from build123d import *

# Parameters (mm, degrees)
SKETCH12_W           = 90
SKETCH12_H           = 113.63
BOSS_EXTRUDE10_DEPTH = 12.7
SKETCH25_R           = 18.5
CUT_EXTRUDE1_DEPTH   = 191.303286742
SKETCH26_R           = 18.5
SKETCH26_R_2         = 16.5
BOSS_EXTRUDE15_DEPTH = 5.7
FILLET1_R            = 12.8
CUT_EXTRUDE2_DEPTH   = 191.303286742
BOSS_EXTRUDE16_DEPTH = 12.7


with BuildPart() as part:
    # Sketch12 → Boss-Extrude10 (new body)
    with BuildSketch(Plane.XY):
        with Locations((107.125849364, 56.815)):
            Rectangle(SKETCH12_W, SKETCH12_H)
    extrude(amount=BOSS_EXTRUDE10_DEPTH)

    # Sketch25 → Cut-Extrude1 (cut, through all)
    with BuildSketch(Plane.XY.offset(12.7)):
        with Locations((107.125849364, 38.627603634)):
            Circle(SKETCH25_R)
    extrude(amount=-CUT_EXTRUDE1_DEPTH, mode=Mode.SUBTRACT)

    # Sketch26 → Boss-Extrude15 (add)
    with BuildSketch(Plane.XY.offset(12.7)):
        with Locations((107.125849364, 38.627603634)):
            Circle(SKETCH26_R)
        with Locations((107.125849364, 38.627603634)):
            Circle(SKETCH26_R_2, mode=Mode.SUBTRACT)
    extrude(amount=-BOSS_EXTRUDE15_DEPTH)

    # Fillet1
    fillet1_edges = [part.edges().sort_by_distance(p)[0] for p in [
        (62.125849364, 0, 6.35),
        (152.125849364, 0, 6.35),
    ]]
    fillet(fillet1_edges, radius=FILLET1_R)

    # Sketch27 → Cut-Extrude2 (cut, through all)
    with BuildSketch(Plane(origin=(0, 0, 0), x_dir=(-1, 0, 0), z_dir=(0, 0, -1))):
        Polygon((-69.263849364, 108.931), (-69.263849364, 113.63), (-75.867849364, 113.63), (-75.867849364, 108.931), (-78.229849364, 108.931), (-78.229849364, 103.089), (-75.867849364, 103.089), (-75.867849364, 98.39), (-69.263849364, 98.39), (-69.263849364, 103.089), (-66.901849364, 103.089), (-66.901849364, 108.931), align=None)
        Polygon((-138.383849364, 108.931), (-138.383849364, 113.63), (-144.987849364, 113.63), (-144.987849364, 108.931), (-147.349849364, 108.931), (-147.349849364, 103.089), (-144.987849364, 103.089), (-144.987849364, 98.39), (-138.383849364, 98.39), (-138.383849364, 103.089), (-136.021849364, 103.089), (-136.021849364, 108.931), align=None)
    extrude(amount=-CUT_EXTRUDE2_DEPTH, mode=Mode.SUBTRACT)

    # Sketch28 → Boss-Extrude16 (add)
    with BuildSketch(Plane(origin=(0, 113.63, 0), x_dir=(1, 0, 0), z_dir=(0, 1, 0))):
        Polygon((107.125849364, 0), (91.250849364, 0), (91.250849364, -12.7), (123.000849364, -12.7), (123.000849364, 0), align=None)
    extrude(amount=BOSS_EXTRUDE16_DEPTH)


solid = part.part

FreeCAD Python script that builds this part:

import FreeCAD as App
import Part
import Sketcher


def edges_at(feature, points):
    """Names of the edges that pass closest to the given points."""
    edges = feature.Shape.Edges
    near = lambda p: min(range(len(edges)), key=lambda i: edges[i].distToShape(Part.Vertex(*p))[0])
    return sorted({f"Edge{near(p) + 1}" for p in points})

doc = App.newDocument("Part")
body = doc.addObject("PartDesign::Body", "Body")

# Sketch on XY plane
sketch1 = body.newObject("Sketcher::SketchObject", "Sketch")
sketch1.AttachmentSupport = (doc.getObject("XY_Plane"), [""])
sketch1.MapMode = "FlatFace"
sketch1.addGeometry(Part.LineSegment(App.Vector(62, 114, 0), App.Vector(62, 0, 0)), False)
sketch1.addGeometry(Part.LineSegment(App.Vector(62, 0, 0), App.Vector(152, 0, 0)), False)
sketch1.addGeometry(Part.LineSegment(App.Vector(152, 0, 0), App.Vector(152, 114, 0)), False)
sketch1.addGeometry(Part.LineSegment(App.Vector(152, 114, 0), App.Vector(62, 114, 0)), False)
sketch1.addConstraint(Sketcher.Constraint("Coincident", 0, 2, 1, 1))
sketch1.addConstraint(Sketcher.Constraint("Coincident", 1, 2, 2, 1))
sketch1.addConstraint(Sketcher.Constraint("Coincident", 2, 2, 3, 1))
sketch1.addConstraint(Sketcher.Constraint("Coincident", 3, 2, 0, 1))
sketch1.addConstraint(Sketcher.Constraint("Vertical", 0))
sketch1.addConstraint(Sketcher.Constraint("Horizontal", 1))
sketch1.addConstraint(Sketcher.Constraint("Vertical", 2))
sketch1.addConstraint(Sketcher.Constraint("Horizontal", 3))
sketch1.addConstraint(Sketcher.Constraint("PointOnObject", 0, 2, -1))
sketch1.addConstraint(Sketcher.Constraint("DistanceX", 1, 1, 1, 2, 90.0))
sketch1.addConstraint(Sketcher.Constraint("DistanceY", 0, 2, 0, 1, 113.63))
sketch1.addConstraint(Sketcher.Constraint("DistanceX", -1, 1, 0, 2, 62.125849))
pad1 = body.newObject("PartDesign::Pad", "Pad")
pad1.Profile = sketch1
pad1.Length = 12.7

# Sketch on XY plane
sketch2 = body.newObject("Sketcher::SketchObject", "Sketch001")
sketch2.AttachmentSupport = (doc.getObject("XY_Plane"), [""])
sketch2.MapMode = "FlatFace"
sketch2.AttachmentOffset = App.Placement(App.Vector(0, 0, 12.7), App.Rotation())
sketch2.addGeometry(Part.Circle(App.Vector(107, 39, 0), App.Vector(0, 0, 1), 18), False)
sketch2.addConstraint(Sketcher.Constraint("Diameter", 0, 37.0))
sketch2.addConstraint(Sketcher.Constraint("DistanceX", -1, 1, 0, 3, 107.125849))
sketch2.addConstraint(Sketcher.Constraint("DistanceY", -1, 1, 0, 3, 38.627604))
pocket1 = body.newObject("PartDesign::Pocket", "Pocket")
pocket1.Profile = sketch2
pocket1.Type = "ThroughAll"

# Sketch on XY plane
sketch3 = body.newObject("Sketcher::SketchObject", "Sketch002")
sketch3.AttachmentSupport = (doc.getObject("XY_Plane"), [""])
sketch3.MapMode = "FlatFace"
sketch3.AttachmentOffset = App.Placement(App.Vector(0, 0, 12.7), App.Rotation())
sketch3.addGeometry(Part.Circle(App.Vector(107, 39, 0), App.Vector(0, 0, 1), 18), False)
sketch3.addGeometry(Part.Circle(App.Vector(107, 39, 0), App.Vector(0, 0, 1), 16), False)
sketch3.addConstraint(Sketcher.Constraint("Coincident", 1, 3, 0, 3))
sketch3.addConstraint(Sketcher.Constraint("Diameter", 0, 37.0))
sketch3.addConstraint(Sketcher.Constraint("Diameter", 1, 33.0))
sketch3.addConstraint(Sketcher.Constraint("DistanceX", -1, 1, 0, 3, 107.125849))
sketch3.addConstraint(Sketcher.Constraint("DistanceY", -1, 1, 0, 3, 38.627604))
pad2 = body.newObject("PartDesign::Pad", "Pad001")
pad2.Profile = sketch3
pad2.Length = 5.7
pad2.Reversed = True
doc.recompute()

fillet = body.newObject("PartDesign::Fillet", "Fillet")
fillet.Base = (pad2, edges_at(pad2, [(62.126, 0, 6.35), (152.126, 0, 6.35)]))
fillet.Radius = 12.8

# Sketch on XY plane
sketch4 = body.newObject("Sketcher::SketchObject", "Sketch003")
sketch4.AttachmentSupport = (doc.getObject("XY_Plane"), [""])
sketch4.MapMode = "FlatFace"
sketch4.addGeometry(Part.LineSegment(App.Vector(69.3, 108.9, 0), App.Vector(69.3, 113.6, 0)), False)
sketch4.addGeometry(Part.LineSegment(App.Vector(69.3, 113.6, 0), App.Vector(75.9, 113.6, 0)), False)
sketch4.addGeometry(Part.LineSegment(App.Vector(75.9, 113.6, 0), App.Vector(75.9, 108.9, 0)), False)
sketch4.addGeometry(Part.LineSegment(App.Vector(75.9, 108.9, 0), App.Vector(78.2, 108.9, 0)), False)
sketch4.addGeometry(Part.LineSegment(App.Vector(78.2, 108.9, 0), App.Vector(78.2, 103.1, 0)), False)
sketch4.addGeometry(Part.LineSegment(App.Vector(78.2, 103.1, 0), App.Vector(75.9, 103.1, 0)), False)
sketch4.addGeometry(Part.LineSegment(App.Vector(75.9, 103.1, 0), App.Vector(75.9, 98.4, 0)), False)
sketch4.addGeometry(Part.LineSegment(App.Vector(75.9, 98.4, 0), App.Vector(69.3, 98.4, 0)), False)
sketch4.addGeometry(Part.LineSegment(App.Vector(69.3, 98.4, 0), App.Vector(69.3, 103.1, 0)), False)
sketch4.addGeometry(Part.LineSegment(App.Vector(69.3, 103.1, 0), App.Vector(66.9, 103.1, 0)), False)
sketch4.addGeometry(Part.LineSegment(App.Vector(66.9, 103.1, 0), App.Vector(66.9, 108.9, 0)), False)
sketch4.addGeometry(Part.LineSegment(App.Vector(66.9, 108.9, 0), App.Vector(69.3, 108.9, 0)), False)
sketch4.addGeometry(Part.LineSegment(App.Vector(138.4, 108.9, 0), App.Vector(138.4, 113.6, 0)), False)
sketch4.addGeometry(Part.LineSegment(App.Vector(138.4, 113.6, 0), App.Vector(145, 113.6, 0)), False)
sketch4.addGeometry(Part.LineSegment(App.Vector(145, 113.6, 0), App.Vector(145, 108.9, 0)), False)
sketch4.addGeometry(Part.LineSegment(App.Vector(145, 108.9, 0), App.Vector(147.3, 108.9, 0)), False)
sketch4.addGeometry(Part.LineSegment(App.Vector(147.3, 108.9, 0), App.Vector(147.3, 103.1, 0)), False)
sketch4.addGeometry(Part.LineSegment(App.Vector(147.3, 103.1, 0), App.Vector(145, 103.1, 0)), False)
sketch4.addGeometry(Part.LineSegment(App.Vector(145, 103.1, 0), App.Vector(145, 98.4, 0)), False)
sketch4.addGeometry(Part.LineSegment(App.Vector(145, 98.4, 0), App.Vector(138.4, 98.4, 0)), False)
sketch4.addGeometry(Part.LineSegment(App.Vector(138.4, 98.4, 0), App.Vector(138.4, 103.1, 0)), False)
sketch4.addGeometry(Part.LineSegment(App.Vector(138.4, 103.1, 0), App.Vector(136, 103.1, 0)), False)
sketch4.addGeometry(Part.LineSegment(App.Vector(136, 103.1, 0), App.Vector(136, 108.9, 0)), False)
sketch4.addGeometry(Part.LineSegment(App.Vector(136, 108.9, 0), App.Vector(138.4, 108.9, 0)), False)
sketch4.addConstraint(Sketcher.Constraint("Coincident", 0, 2, 1, 1))
sketch4.addConstraint(Sketcher.Constraint("Coincident", 1, 2, 2, 1))
sketch4.addConstraint(Sketcher.Constraint("Coincident", 2, 2, 3, 1))
sketch4.addConstraint(Sketcher.Constraint("Coincident", 3, 2, 4, 1))
sketch4.addConstraint(Sketcher.Constraint("Coincident", 4, 2, 5, 1))
sketch4.addConstraint(Sketcher.Constraint("Coincident", 5, 2, 6, 1))
sketch4.addConstraint(Sketcher.Constraint("Coincident", 6, 2, 7, 1))
sketch4.addConstraint(Sketcher.Constraint("Coincident", 7, 2, 8, 1))
sketch4.addConstraint(Sketcher.Constraint("Coincident", 8, 2, 9, 1))
sketch4.addConstraint(Sketcher.Constraint("Coincident", 9, 2, 10, 1))
sketch4.addConstraint(Sketcher.Constraint("Coincident", 10, 2, 11, 1))
sketch4.addConstraint(Sketcher.Constraint("Coincident", 11, 2, 0, 1))
sketch4.addConstraint(Sketcher.Constraint("Coincident", 12, 2, 13, 1))
sketch4.addConstraint(Sketcher.Constraint("Coincident", 13, 2, 14, 1))
sketch4.addConstraint(Sketcher.Constraint("Coincident", 14, 2, 15, 1))
sketch4.addConstraint(Sketcher.Constraint("Coincident", 15, 2, 16, 1))
sketch4.addConstraint(Sketcher.Constraint("Coincident", 16, 2, 17, 1))
sketch4.addConstraint(Sketcher.Constraint("Coincident", 17, 2, 18, 1))
sketch4.addConstraint(Sketcher.Constraint("Coincident", 18, 2, 19, 1))
sketch4.addConstraint(Sketcher.Constraint("Coincident", 19, 2, 20, 1))
sketch4.addConstraint(Sketcher.Constraint("Coincident", 20, 2, 21, 1))
sketch4.addConstraint(Sketcher.Constraint("Coincident", 21, 2, 22, 1))
sketch4.addConstraint(Sketcher.Constraint("Coincident", 22, 2, 23, 1))
sketch4.addConstraint(Sketcher.Constraint("Coincident", 23, 2, 12, 1))
sketch4.addConstraint(Sketcher.Constraint("Vertical", 0))
sketch4.addConstraint(Sketcher.Constraint("Horizontal", 1))
sketch4.addConstraint(Sketcher.Constraint("Vertical", 2))
sketch4.addConstraint(Sketcher.Constraint("Horizontal", 3))
sketch4.addConstraint(Sketcher.Constraint("Vertical", 4))
sketch4.addConstraint(Sketcher.Constraint("Horizontal", 5))
sketch4.addConstraint(Sketcher.Constraint("Vertical", 6))
sketch4.addConstraint(Sketcher.Constraint("Horizontal", 7))
sketch4.addConstraint(Sketcher.Constraint("Vertical", 8))
sketch4.addConstraint(Sketcher.Constraint("Horizontal", 9))
sketch4.addConstraint(Sketcher.Constraint("Vertical", 10))
sketch4.addConstraint(Sketcher.Constraint("Horizontal", 11))
sketch4.addConstraint(Sketcher.Constraint("Vertical", 12))
sketch4.addConstraint(Sketcher.Constraint("Horizontal", 13))
sketch4.addConstraint(Sketcher.Constraint("Vertical", 14))
sketch4.addConstraint(Sketcher.Constraint("Horizontal", 15))
sketch4.addConstraint(Sketcher.Constraint("Vertical", 16))
sketch4.addConstraint(Sketcher.Constraint("Horizontal", 17))
sketch4.addConstraint(Sketcher.Constraint("Vertical", 18))
sketch4.addConstraint(Sketcher.Constraint("Horizontal", 19))
sketch4.addConstraint(Sketcher.Constraint("Vertical", 20))
sketch4.addConstraint(Sketcher.Constraint("Horizontal", 21))
sketch4.addConstraint(Sketcher.Constraint("Vertical", 22))
sketch4.addConstraint(Sketcher.Constraint("Horizontal", 23))
sketch4.addConstraint(Sketcher.Constraint("Horizontal", 5, 2, 8, 2))
sketch4.addConstraint(Sketcher.Constraint("Horizontal", 3, 2, 10, 2))
sketch4.addConstraint(Sketcher.Constraint("Horizontal", 1, 2, 12, 2))
sketch4.addConstraint(Sketcher.Constraint("Horizontal", 11, 2, 14, 2))
sketch4.addConstraint(Sketcher.Constraint("Horizontal", 9, 2, 16, 2))
sketch4.addConstraint(Sketcher.Constraint("Horizontal", 7, 2, 18, 2))
sketch4.addConstraint(Sketcher.Constraint("Horizontal", 17, 2, 20, 2))
sketch4.addConstraint(Sketcher.Constraint("Horizontal", 15, 2, 22, 2))
sketch4.addConstraint(Sketcher.Constraint("Vertical", 2, 2, 5, 2))
sketch4.addConstraint(Sketcher.Constraint("Vertical", 0, 2, 7, 2))
sketch4.addConstraint(Sketcher.Constraint("Vertical", 14, 2, 17, 2))
sketch4.addConstraint(Sketcher.Constraint("Vertical", 12, 2, 19, 2))
sketch4.addConstraint(Sketcher.Constraint("Equal", 5, 9))
sketch4.addConstraint(Sketcher.Constraint("Equal", 7, 13))
sketch4.addConstraint(Sketcher.Constraint("Equal", 11, 15))
sketch4.addConstraint(Sketcher.Constraint("Equal", 17, 21))
sketch4.addConstraint(Sketcher.Constraint("Equal", 2, 6))
sketch4.addConstraint(Sketcher.Constraint("DistanceX", 1, 1, 1, 2, 6.604))
sketch4.addConstraint(Sketcher.Constraint("DistanceX", 3, 1, 3, 2, 2.362))
sketch4.addConstraint(Sketcher.Constraint("DistanceY", 0, 1, 0, 2, 4.699))
sketch4.addConstraint(Sketcher.Constraint("DistanceY", 4, 2, 4, 1, 5.842))
sketch4.addConstraint(Sketcher.Constraint("DistanceY", -1, 1, 0, 2, 113.63))
sketch4.addConstraint(Sketcher.Constraint("DistanceX", 1, 2, 13, 2, 69.12))
sketch4.addConstraint(Sketcher.Constraint("DistanceX", -1, 1, 0, 2, 69.263849))
pocket2 = body.newObject("PartDesign::Pocket", "Pocket001")
pocket2.Profile = sketch4
pocket2.Type = "ThroughAll"
pocket2.Reversed = True

# Sketch on XZ plane
sketch5 = body.newObject("Sketcher::SketchObject", "Sketch004")
sketch5.AttachmentSupport = (doc.getObject("XZ_Plane"), [""])
sketch5.MapMode = "FlatFace"
sketch5.AttachmentOffset = App.Placement(App.Vector(0, 0, -113.63), App.Rotation())
sketch5.addGeometry(Part.LineSegment(App.Vector(91, 0, 0), App.Vector(91, 13, 0)), False)
sketch5.addGeometry(Part.LineSegment(App.Vector(91, 13, 0), App.Vector(123, 13, 0)), False)
sketch5.addGeometry(Part.LineSegment(App.Vector(123, 13, 0), App.Vector(123, 0, 0)), False)
sketch5.addGeometry(Part.LineSegment(App.Vector(123, 0, 0), App.Vector(91, 0, 0)), False)
sketch5.addConstraint(Sketcher.Constraint("Coincident", 0, 2, 1, 1))
sketch5.addConstraint(Sketcher.Constraint("Coincident", 1, 2, 2, 1))
sketch5.addConstraint(Sketcher.Constraint("Coincident", 2, 2, 3, 1))
sketch5.addConstraint(Sketcher.Constraint("Coincident", 3, 2, 0, 1))
sketch5.addConstraint(Sketcher.Constraint("Vertical", 0))
sketch5.addConstraint(Sketcher.Constraint("Horizontal", 1))
sketch5.addConstraint(Sketcher.Constraint("Vertical", 2))
sketch5.addConstraint(Sketcher.Constraint("Horizontal", 3))
sketch5.addConstraint(Sketcher.Constraint("PointOnObject", 2, 2, -1))
sketch5.addConstraint(Sketcher.Constraint("DistanceY", 0, 1, 0, 2, 12.7))
sketch5.addConstraint(Sketcher.Constraint("DistanceX", 1, 1, 1, 2, 31.75))
sketch5.addConstraint(Sketcher.Constraint("DistanceX", -1, 1, 0, 2, 91.250849))
pad3 = body.newObject("PartDesign::Pad", "Pad002")
pad3.Profile = sketch5
pad3.Length = 12.7
pad3.Reversed = True

doc.recompute()
